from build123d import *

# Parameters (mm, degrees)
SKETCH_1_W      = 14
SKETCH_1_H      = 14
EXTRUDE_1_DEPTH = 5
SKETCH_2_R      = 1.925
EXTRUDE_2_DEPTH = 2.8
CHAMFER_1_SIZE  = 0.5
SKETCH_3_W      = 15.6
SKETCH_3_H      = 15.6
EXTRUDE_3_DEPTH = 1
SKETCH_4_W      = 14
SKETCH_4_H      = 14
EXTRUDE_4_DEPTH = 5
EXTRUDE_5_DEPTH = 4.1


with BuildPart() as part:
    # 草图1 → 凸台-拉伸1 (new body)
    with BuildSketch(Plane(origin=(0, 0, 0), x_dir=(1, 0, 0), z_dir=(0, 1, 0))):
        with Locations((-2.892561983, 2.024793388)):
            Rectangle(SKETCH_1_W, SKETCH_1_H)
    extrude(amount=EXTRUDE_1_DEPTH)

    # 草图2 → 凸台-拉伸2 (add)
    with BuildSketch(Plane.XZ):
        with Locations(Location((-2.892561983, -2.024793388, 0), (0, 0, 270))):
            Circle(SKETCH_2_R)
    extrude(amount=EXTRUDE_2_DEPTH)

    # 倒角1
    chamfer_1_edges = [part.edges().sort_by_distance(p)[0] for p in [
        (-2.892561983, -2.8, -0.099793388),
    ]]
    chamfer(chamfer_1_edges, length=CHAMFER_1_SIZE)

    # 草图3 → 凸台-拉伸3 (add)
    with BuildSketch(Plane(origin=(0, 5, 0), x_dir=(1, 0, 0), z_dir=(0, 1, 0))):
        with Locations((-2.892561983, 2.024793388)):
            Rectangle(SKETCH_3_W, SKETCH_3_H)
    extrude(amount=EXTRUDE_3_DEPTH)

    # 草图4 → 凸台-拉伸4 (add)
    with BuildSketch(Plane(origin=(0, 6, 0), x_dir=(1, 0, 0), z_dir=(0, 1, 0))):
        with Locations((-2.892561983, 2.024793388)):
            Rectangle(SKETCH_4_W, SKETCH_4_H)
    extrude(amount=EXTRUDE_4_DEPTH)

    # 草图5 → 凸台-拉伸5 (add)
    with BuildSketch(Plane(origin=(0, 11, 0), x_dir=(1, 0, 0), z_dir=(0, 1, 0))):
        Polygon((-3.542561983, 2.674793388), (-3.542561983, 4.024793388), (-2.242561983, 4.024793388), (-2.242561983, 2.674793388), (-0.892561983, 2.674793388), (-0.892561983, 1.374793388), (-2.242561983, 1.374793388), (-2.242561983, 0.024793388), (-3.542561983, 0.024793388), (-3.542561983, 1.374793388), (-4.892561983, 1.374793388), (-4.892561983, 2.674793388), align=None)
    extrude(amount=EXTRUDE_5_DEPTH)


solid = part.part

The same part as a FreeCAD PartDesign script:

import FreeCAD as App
import Part
import Sketcher


def edges_at(feature, points):
    """Names of the edges that pass closest to the given points."""
    edges = feature.Shape.Edges
    near = lambda p: min(range(len(edges)), key=lambda i: edges[i].distToShape(Part.Vertex(*p))[0])
    return sorted({f"Edge{near(p) + 1}" for p in points})


def add_polygon(sketch, points):
    """Adds a closed chain of lines whose ends are joined by coincident constraints."""
    first, n = sketch.GeometryCount, len(points)
    for a, b in zip(points, points[1:] + points[:1]):
        sketch.addGeometry(Part.LineSegment(App.Vector(*a, 0), App.Vector(*b, 0)), False)
    for i in range(n):
        sketch.addConstraint(Sketcher.Constraint("Coincident", first + i, 2, first + (i + 1) % n, 1))

doc = App.newDocument("Part")
body = doc.addObject("PartDesign::Body", "Body")

# Sketch on XZ plane
sketch1 = body.newObject("Sketcher::SketchObject", "Sketch")
sketch1.AttachmentSupport = (doc.getObject("XZ_Plane"), [""])
sketch1.MapMode = "FlatFace"
add_polygon(sketch1, [(-10, -9), (-10, 5), (4, 5), (4, -9)])  # lines 0-3
sketch1.addConstraint([
    Sketcher.Constraint("Vertical", 0),
    Sketcher.Constraint("Horizontal", 1),
    Sketcher.Constraint("Vertical", 2),
    Sketcher.Constraint("Horizontal", 3),
    Sketcher.Constraint("Equal", 3, 0),
    Sketcher.Constraint("DistanceX", 1, 1, 1, 2, 14.0),
    Sketcher.Constraint("DistanceX", 0, 2, -1, 1, 9.892562),
    Sketcher.Constraint("DistanceY", -1, 1, 0, 2, 4.975207),
])
pad1 = body.newObject("PartDesign::Pad", "Pad")
pad1.Profile = sketch1
pad1.Length = 5
pad1.Reversed = True

# Sketch on XZ plane
sketch2 = body.newObject("Sketcher::SketchObject", "Sketch001")
sketch2.AttachmentSupport = (doc.getObject("XZ_Plane"), [""])
sketch2.MapMode = "FlatFace"
sketch2.addGeometry(Part.Circle(App.Vector(-2.9, -2, 0), App.Vector(0, 0, 1), 1.9), False)
sketch2.addConstraint([
    Sketcher.Constraint("Diameter", 0, 3.85),
    Sketcher.Constraint("DistanceX", 0, 3, -1, 1, 2.892562),
    Sketcher.Constraint("DistanceY", 0, 3, -1, 1, 2.024793),
])
pad2 = body.newObject("PartDesign::Pad", "Pad001")
pad2.Profile = sketch2
pad2.Length = 2.8
doc.recompute()

chamfer = body.newObject("PartDesign::Chamfer", "Chamfer")
chamfer.Base = (pad2, edges_at(pad2, [(-2.893, -2.8, -0.1)]))
chamfer.Size = 0.5

# Sketch on XZ plane
sketch3 = body.newObject("Sketcher::SketchObject", "Sketch002")
sketch3.AttachmentSupport = (doc.getObject("XZ_Plane"), [""])
sketch3.MapMode = "FlatFace"
sketch3.AttachmentOffset = App.Placement(App.Vector(0, 0, -5), App.Rotation())
add_polygon(sketch3, [(-11, -10), (-11, 6), (5, 6), (5, -10)])  # lines 0-3
sketch3.addConstraint([
    Sketcher.Constraint("Vertical", 0),
    Sketcher.Constraint("Horizontal", 1),
    Sketcher.Constraint("Vertical", 2),
    Sketcher.Constraint("Horizontal", 3),
    Sketcher.Constraint("Equal", 3, 0),
    Sketcher.Constraint("DistanceX", 1, 1, 1, 2, 15.6),
    Sketcher.Constraint("DistanceX", 0, 2, -1, 1, 10.692562),
    Sketcher.Constraint("DistanceY", -1, 1, 0, 2, 5.775207),
])
pad3 = body.newObject("PartDesign::Pad", "Pad002")
pad3.Profile = sketch3
pad3.Length = 1
pad3.Reversed = True

# Sketch on XZ plane
sketch4 = body.newObject("Sketcher::SketchObject", "Sketch003")
sketch4.AttachmentSupport = (doc.getObject("XZ_Plane"), [""])
sketch4.MapMode = "FlatFace"
sketch4.AttachmentOffset = App.Placement(App.Vector(0, 0, -6), App.Rotation())
add_polygon(sketch4, [(-10, -9), (-10, 5), (4, 5), (4, -9)])  # lines 0-3
sketch4.addConstraint([
    Sketcher.Constraint("Vertical", 0),
    Sketcher.Constraint("Horizontal", 1),
    Sketcher.Constraint("Vertical", 2),
    Sketcher.Constraint("Horizontal", 3),
    Sketcher.Constraint("Equal", 3, 0),
    Sketcher.Constraint("DistanceX", 1, 1, 1, 2, 14.0),
    Sketcher.Constraint("DistanceX", 0, 2, -1, 1, 9.892562),
    Sketcher.Constraint("DistanceY", -1, 1, 0, 2, 4.975207),
])
pad4 = body.newObject("PartDesign::Pad", "Pad003")
pad4.Profile = sketch4
pad4.Length = 5
pad4.Reversed = True

# Sketch on XZ plane
sketch5 = body.newObject("Sketcher::SketchObject", "Sketch004")
sketch5.AttachmentSupport = (doc.getObject("XZ_Plane"), [""])
sketch5.MapMode = "FlatFace"
sketch5.AttachmentOffset = App.Placement(App.Vector(0, 0, -11), App.Rotation())
add_polygon(sketch5, [(-3.5, -4), (-3.5, -2.7), (-4.9, -2.7), (-4.9, -1.4), (-3.5, -1.4), (-3.5, 0), (-2.2, 0), (-2.2, -1.4), (-0.9, -1.4), (-0.9, -2.7), (-2.2, -2.7), (-2.2, -4)])  # lines 0-11
sketch5.addConstraint([
    Sketcher.Constraint("Vertical", 0),
    Sketcher.Constraint("Horizontal", 1),
    Sketcher.Constraint("Vertical", 2),
    Sketcher.Constraint("Horizontal", 3),
    Sketcher.Constraint("Vertical", 4),
    Sketcher.Constraint("Horizontal", 5),
    Sketcher.Constraint("Vertical", 6),
    Sketcher.Constraint("Horizontal", 7),
    Sketcher.Constraint("Vertical", 8),
    Sketcher.Constraint("Horizontal", 9),
    Sketcher.Constraint("Vertical", 10),
    Sketcher.Constraint("Horizontal", 11),
    Sketcher.Constraint("Horizontal", 3, 2, 6, 2),
    Sketcher.Constraint("Horizontal", 1, 2, 8, 2),
    Sketcher.Constraint("Vertical", 0, 2, 3, 2),
    Sketcher.Constraint("Vertical", 6, 2, 9, 2),
    Sketcher.Constraint("Equal", 3, 7),
    Sketcher.Constraint("Equal", 9, 0),
    Sketcher.Constraint("Equal", 11, 2),
    Sketcher.Constraint("Equal", 0, 4),
    Sketcher.Constraint("DistanceX", 5, 1, 5, 2, 1.3),
    Sketcher.Constraint("DistanceX", 1, 2, 1, 1, 1.35),
    Sketcher.Constraint("DistanceX", 0, 2, -1, 1, 3.542562),
    Sketcher.Constraint("DistanceY", 0, 2, -1, 1, 2.674793),
])
pad5 = body.newObject("PartDesign::Pad", "Pad004")
pad5.Profile = sketch5
pad5.Length = 4.1
pad5.Reversed = True

doc.recompute()
